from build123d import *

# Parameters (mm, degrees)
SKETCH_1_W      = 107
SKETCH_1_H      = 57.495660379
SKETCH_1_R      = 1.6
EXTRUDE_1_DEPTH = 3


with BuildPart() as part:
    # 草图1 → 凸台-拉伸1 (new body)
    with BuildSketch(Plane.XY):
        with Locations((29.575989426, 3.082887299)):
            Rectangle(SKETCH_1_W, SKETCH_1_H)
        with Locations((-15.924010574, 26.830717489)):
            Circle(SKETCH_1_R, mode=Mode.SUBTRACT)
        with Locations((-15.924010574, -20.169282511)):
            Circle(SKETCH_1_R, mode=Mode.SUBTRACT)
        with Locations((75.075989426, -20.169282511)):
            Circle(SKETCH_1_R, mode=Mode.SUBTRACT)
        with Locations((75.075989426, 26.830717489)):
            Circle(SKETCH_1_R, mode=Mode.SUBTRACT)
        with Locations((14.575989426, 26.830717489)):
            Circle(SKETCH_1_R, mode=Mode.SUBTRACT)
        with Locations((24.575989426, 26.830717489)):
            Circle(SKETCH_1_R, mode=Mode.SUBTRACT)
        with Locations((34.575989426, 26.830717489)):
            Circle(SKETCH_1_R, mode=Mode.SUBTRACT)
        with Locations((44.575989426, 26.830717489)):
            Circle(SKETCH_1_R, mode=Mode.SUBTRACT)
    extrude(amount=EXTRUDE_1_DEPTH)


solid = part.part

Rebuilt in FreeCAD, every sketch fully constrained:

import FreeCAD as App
import Part
import Sketcher
Q = App.Units.Quantity


def add_polygon(sketch, points):
    """Adds a closed chain of lines whose ends are joined by coincident constraints."""
    first, n = sketch.GeometryCount, len(points)
    for a, b in zip(points, points[1:] + points[:1]):
        sketch.addGeometry(Part.LineSegment(App.Vector(*a, 0), App.Vector(*b, 0)), False)
    for i in range(n):
        sketch.addConstraint(Sketcher.Constraint("Coincident", first + i, 2, first + (i + 1) % n, 1))

doc = App.newDocument("Part")
body = doc.addObject("PartDesign::Body", "Body")

# Sketch on XY plane
sketch1 = body.newObject("Sketcher::SketchObject", "Sketch")
sketch1.AttachmentSupport = (doc.getObject("XY_Plane"), [""])
sketch1.MapMode = "FlatFace"
add_polygon(sketch1, [(-23.9, 31.8), (-23.9, -25.7), (83.1, -25.7), (83.1, 31.8)])  # lines 0-3
sketch1.addGeometry(Part.Circle(App.Vector(-15.9, -20.2, 0), App.Vector(0, 0, 1), 1.6), False)  # 4
sketch1.addGeometry(Part.Circle(App.Vector(75.1, -20.2, 0), App.Vector(0, 0, 1), 1.6), False)  # 5
sketch1.addGeometry(Part.Circle(App.Vector(-15.9, 26.8, 0), App.Vector(0, 0, 1), 1.6), False)  # 6
sketch1.addGeometry(Part.Circle(App.Vector(14.6, 26.8, 0), App.Vector(0, 0, 1), 1.6), False)  # 7
sketch1.addGeometry(Part.Circle(App.Vector(24.6, 26.8, 0), App.Vector(0, 0, 1), 1.6), False)  # 8
sketch1.addGeometry(Part.Circle(App.Vector(34.6, 26.8, 0), App.Vector(0, 0, 1), 1.6), False)  # 9
sketch1.addGeometry(Part.Circle(App.Vector(44.6, 26.8, 0), App.Vector(0, 0, 1), 1.6), False)  # 10
sketch1.addGeometry(Part.Circle(App.Vector(75.1, 26.8, 0), App.Vector(0, 0, 1), 1.6), False)  # 11
sketch1.addConstraint([
    Sketcher.Constraint("Vertical", 0),
    Sketcher.Constraint("Horizontal", 1),
    Sketcher.Constraint("Vertical", 2),
    Sketcher.Constraint("Horizontal", 3),
    Sketcher.Constraint("Equal", 4, 5),
    Sketcher.Constraint("Equal", 5, 6),
    Sketcher.Constraint("Equal", 6, 7),
    Sketcher.Constraint("Equal", 7, 8),
    Sketcher.Constraint("Equal", 8, 9),
    Sketcher.Constraint("Equal", 9, 10),
    Sketcher.Constraint("Equal", 10, 11),
    Sketcher.Constraint("Horizontal", 4, 3, 5, 3),
    Sketcher.Constraint("Horizontal", 6, 3, 7, 3),
    Sketcher.Constraint("Horizontal", 7, 3, 8, 3),
    Sketcher.Constraint("Horizontal", 8, 3, 9, 3),
    Sketcher.Constraint("Horizontal", 9, 3, 10, 3),
    Sketcher.Constraint("Horizontal", 10, 3, 11, 3),
    Sketcher.Constraint("Vertical", 4, 3, 6, 3),
    Sketcher.Constraint("Vertical", 5, 3, 11, 3),
    Sketcher.Constraint("Diameter", 4, Q("3.2 mm")),
    Sketcher.Constraint("DistanceX", 1, 1, 1, 2, Q("107 mm")),
    Sketcher.Constraint("DistanceX", 4, 3, 5, 3, Q("91 mm")),
    Sketcher.Constraint("DistanceY", 4, 3, 6, 3, Q("47 mm")),
    Sketcher.Constraint("DistanceX", 7, 3, 8, 3, Q("10 mm")),
    Sketcher.Constraint("DistanceX", 8, 3, 9, 3, Q("10 mm")),
    Sketcher.Constraint("DistanceX", 9, 3, 10, 3, Q("10 mm")),
    Sketcher.Constraint("DistanceX", 0, 2, 4, 3, Q("8 mm")),
    Sketcher.Constraint("DistanceY", 11, 3, 2, 2, Q("5 mm")),
    Sketcher.Constraint("DistanceX", 6, 3, 7, 3, Q("30.5 mm")),
    Sketcher.Constraint("DistanceY", 0, 2, 0, 1, Q("57.49566 mm")),
    Sketcher.Constraint("DistanceX", 4, 3, -1, 1, Q("15.924011 mm")),
    Sketcher.Constraint("DistanceY", 4, 3, -1, 1, Q("20.169283 mm")),
])
pad1 = body.newObject("PartDesign::Pad", "Pad")
pad1.Profile = sketch1
pad1.Length = 3

doc.recompute()
